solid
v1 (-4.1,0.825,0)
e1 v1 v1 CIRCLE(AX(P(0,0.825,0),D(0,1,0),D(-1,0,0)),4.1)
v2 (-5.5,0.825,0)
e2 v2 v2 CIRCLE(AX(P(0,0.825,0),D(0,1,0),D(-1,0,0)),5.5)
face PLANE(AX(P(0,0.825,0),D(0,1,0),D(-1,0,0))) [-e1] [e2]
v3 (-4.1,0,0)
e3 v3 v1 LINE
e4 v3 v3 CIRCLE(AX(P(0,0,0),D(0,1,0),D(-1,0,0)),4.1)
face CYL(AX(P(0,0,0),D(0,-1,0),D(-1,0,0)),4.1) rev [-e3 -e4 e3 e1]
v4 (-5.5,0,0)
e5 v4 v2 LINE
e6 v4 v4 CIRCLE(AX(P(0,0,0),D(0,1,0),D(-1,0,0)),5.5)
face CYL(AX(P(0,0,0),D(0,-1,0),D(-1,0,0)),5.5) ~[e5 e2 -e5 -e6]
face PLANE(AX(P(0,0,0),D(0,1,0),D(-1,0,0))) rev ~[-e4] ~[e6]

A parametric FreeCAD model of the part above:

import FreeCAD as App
import Part
import Sketcher

doc = App.newDocument("Part")
body = doc.addObject("PartDesign::Body", "Body")

# Sketch on XZ plane
sketch1 = body.newObject("Sketcher::SketchObject", "Sketch")
sketch1.AttachmentSupport = (doc.getObject("XZ_Plane"), [""])
sketch1.MapMode = "FlatFace"
sketch1.addGeometry(Part.Circle(App.Vector(0, 0, 0), App.Vector(0, 0, 1), 5.5), False)
sketch1.addGeometry(Part.Circle(App.Vector(0, 0, 0), App.Vector(0, 0, 1), 4.1), False)
sketch1.addConstraint(Sketcher.Constraint("Coincident", 0, 3, -1, 1))
sketch1.addConstraint(Sketcher.Constraint("Coincident", 1, 3, -1, 1))
sketch1.addConstraint(Sketcher.Constraint("Diameter", 0, 11.0))
sketch1.addConstraint(Sketcher.Constraint("Diameter", 1, 8.2))
pad1 = body.newObject("PartDesign::Pad", "Pad")
pad1.Profile = sketch1
pad1.Length = 0.825
pad1.Reversed = True

doc.recompute()
